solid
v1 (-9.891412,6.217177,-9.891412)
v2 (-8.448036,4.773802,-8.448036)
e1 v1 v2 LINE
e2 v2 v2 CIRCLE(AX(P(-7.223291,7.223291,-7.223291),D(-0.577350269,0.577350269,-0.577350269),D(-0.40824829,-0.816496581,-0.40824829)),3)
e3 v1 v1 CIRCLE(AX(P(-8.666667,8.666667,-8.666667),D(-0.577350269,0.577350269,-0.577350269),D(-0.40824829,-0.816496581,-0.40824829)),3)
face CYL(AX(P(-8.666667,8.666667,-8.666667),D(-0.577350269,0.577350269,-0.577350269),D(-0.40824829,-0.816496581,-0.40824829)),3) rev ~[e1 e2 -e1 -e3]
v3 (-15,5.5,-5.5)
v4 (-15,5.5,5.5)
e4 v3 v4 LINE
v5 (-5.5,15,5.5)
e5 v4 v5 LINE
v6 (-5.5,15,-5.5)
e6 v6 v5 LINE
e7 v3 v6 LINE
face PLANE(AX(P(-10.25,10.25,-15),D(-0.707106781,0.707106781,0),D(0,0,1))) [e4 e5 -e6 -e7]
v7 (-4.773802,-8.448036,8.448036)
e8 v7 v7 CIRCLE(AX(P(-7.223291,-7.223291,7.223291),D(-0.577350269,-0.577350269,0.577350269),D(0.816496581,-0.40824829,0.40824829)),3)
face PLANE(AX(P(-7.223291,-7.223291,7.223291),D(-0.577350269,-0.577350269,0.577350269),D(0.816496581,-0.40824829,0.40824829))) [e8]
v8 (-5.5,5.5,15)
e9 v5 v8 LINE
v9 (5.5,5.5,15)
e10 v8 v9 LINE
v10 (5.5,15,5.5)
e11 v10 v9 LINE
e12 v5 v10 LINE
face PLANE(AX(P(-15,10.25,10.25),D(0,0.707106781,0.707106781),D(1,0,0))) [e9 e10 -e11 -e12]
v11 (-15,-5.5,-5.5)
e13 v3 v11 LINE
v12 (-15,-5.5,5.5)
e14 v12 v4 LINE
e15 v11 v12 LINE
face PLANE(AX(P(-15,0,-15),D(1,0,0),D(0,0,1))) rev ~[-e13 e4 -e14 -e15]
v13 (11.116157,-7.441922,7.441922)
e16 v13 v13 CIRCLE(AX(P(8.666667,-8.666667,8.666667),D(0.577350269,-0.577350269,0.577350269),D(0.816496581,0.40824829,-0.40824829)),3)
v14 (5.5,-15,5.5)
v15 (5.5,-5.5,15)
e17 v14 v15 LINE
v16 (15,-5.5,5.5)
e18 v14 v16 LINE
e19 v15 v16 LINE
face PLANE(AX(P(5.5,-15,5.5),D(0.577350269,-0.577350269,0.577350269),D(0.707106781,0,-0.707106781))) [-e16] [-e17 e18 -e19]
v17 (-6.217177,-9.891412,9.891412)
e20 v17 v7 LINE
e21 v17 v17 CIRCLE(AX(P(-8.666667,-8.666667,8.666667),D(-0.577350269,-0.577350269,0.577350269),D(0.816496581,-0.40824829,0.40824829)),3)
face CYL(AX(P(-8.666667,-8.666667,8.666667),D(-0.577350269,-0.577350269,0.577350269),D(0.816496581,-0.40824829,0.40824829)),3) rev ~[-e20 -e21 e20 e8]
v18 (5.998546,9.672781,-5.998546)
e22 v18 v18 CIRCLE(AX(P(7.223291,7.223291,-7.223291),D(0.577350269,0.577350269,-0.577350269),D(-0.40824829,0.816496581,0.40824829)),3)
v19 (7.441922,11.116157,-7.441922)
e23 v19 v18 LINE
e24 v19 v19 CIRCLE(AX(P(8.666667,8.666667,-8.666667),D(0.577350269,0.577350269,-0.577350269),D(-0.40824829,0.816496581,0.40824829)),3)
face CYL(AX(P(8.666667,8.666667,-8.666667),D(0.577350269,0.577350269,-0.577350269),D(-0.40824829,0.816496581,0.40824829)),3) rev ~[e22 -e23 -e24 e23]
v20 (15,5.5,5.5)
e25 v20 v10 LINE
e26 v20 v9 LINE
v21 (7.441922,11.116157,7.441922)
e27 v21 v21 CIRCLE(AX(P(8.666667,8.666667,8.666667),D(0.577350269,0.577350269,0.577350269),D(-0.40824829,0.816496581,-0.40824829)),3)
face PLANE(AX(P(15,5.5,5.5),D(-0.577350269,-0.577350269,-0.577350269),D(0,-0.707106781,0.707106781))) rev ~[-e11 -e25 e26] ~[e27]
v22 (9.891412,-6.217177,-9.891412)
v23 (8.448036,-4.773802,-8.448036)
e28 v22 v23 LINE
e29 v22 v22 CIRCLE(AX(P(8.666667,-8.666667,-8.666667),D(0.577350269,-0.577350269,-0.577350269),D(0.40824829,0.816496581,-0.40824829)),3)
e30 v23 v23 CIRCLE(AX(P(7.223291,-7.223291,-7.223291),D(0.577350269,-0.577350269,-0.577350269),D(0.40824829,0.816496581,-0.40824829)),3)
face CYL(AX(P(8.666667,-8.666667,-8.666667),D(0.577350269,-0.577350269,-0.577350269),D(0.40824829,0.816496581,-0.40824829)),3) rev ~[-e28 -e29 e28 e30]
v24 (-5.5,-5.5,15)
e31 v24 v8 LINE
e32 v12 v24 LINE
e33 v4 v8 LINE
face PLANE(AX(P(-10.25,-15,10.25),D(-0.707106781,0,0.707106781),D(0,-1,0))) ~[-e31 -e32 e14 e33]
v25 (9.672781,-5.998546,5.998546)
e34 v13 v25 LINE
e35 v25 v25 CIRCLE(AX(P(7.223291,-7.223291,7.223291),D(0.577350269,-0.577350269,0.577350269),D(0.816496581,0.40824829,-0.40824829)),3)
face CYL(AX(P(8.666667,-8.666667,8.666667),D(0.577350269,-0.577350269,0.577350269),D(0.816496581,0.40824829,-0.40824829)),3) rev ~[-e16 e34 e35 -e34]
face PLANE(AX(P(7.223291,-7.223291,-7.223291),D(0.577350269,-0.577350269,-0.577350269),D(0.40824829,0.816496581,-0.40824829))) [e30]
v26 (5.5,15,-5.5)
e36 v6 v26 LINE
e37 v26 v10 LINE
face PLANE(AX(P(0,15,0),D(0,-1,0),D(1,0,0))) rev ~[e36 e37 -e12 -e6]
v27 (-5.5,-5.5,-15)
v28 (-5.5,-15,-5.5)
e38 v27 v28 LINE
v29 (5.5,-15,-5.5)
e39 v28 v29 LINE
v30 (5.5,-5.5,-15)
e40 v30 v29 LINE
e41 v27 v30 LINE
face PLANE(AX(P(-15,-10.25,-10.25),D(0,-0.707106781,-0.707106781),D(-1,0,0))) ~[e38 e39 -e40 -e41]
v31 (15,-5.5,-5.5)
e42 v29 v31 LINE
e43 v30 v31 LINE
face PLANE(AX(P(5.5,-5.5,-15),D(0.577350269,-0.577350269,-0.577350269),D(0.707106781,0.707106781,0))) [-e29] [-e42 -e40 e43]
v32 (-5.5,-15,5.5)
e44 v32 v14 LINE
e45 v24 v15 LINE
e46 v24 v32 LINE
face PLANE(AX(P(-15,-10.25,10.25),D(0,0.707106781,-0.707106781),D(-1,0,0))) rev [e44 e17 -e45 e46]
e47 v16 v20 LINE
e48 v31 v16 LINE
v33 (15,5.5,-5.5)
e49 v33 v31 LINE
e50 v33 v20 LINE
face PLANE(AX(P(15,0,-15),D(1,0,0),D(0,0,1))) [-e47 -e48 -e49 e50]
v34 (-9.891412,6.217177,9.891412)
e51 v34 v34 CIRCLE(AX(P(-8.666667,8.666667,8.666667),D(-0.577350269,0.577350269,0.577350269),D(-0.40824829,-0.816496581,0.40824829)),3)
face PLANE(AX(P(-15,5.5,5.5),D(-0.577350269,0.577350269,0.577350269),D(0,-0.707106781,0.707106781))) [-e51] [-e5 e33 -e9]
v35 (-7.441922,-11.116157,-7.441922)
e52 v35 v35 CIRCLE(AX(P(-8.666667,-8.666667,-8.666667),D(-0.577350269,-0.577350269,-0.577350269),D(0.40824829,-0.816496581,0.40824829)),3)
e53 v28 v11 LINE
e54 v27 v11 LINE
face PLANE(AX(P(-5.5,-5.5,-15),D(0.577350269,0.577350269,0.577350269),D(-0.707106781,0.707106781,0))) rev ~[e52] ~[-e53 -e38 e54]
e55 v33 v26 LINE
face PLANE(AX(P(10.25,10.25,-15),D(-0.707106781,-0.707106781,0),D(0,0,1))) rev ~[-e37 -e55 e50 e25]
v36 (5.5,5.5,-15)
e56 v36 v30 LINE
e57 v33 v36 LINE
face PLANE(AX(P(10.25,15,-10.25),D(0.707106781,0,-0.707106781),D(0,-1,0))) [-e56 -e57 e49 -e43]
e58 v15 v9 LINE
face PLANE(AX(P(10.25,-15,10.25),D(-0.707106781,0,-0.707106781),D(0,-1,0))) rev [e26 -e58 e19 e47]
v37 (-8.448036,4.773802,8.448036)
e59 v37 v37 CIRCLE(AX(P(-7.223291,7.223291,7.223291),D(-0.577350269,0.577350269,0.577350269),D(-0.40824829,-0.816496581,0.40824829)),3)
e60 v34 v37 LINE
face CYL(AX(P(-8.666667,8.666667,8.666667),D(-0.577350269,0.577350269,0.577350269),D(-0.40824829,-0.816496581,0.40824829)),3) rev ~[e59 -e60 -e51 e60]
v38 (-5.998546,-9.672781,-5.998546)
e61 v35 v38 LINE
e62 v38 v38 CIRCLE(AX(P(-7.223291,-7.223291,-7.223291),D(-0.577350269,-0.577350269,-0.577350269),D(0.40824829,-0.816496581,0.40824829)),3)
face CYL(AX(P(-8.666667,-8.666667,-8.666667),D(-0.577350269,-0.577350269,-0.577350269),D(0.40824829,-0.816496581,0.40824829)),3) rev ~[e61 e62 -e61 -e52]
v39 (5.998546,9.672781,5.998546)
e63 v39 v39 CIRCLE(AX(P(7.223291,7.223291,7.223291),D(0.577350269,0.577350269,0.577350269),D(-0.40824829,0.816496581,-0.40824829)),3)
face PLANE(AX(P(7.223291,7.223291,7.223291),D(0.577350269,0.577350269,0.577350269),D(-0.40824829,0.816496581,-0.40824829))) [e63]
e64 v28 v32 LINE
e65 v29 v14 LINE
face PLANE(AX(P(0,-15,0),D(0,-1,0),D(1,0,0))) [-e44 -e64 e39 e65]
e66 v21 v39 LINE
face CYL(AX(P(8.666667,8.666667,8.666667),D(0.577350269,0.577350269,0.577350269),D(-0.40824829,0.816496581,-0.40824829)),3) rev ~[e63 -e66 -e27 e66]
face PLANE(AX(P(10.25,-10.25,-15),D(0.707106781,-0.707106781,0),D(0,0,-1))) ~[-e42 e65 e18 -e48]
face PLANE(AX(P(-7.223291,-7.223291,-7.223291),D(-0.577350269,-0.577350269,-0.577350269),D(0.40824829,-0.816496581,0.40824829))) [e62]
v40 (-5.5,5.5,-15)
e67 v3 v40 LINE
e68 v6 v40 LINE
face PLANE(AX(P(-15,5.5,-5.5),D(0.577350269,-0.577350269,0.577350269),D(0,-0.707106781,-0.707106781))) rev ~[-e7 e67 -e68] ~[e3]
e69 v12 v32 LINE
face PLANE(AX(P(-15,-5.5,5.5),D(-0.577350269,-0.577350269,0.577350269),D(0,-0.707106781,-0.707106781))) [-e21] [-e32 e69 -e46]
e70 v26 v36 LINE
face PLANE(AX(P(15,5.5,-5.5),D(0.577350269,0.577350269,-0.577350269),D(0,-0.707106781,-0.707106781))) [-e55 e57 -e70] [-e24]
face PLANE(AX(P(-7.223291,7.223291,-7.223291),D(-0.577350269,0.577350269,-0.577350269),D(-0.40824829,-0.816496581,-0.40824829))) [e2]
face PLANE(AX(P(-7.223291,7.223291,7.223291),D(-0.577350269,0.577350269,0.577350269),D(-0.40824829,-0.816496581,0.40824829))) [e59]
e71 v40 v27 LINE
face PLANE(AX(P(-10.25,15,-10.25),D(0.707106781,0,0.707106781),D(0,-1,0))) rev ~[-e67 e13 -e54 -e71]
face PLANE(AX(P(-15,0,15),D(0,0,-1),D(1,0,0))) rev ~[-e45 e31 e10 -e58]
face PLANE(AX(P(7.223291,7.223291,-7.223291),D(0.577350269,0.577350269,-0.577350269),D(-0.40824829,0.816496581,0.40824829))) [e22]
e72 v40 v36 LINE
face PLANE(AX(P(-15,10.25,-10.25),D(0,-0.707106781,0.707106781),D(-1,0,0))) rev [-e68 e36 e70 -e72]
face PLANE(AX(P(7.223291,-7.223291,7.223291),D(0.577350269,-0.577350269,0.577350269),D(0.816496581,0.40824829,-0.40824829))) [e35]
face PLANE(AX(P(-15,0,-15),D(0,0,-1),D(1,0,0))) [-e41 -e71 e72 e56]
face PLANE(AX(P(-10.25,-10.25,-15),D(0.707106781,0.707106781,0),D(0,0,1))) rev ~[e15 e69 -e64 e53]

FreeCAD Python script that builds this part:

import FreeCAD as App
import Part
import Sketcher


def add_polygon(sketch, points):
    """Adds a closed chain of lines whose ends are joined by coincident constraints."""
    first, n = sketch.GeometryCount, len(points)
    for a, b in zip(points, points[1:] + points[:1]):
        sketch.addGeometry(Part.LineSegment(App.Vector(*a, 0), App.Vector(*b, 0)), False)
    for i in range(n):
        sketch.addConstraint(Sketcher.Constraint("Coincident", first + i, 2, first + (i + 1) % n, 1))

doc = App.newDocument("Part")
body = doc.addObject("PartDesign::Body", "Body")

# Sketch on XZ plane
sketch1 = body.newObject("Sketcher::SketchObject", "Sketch")
sketch1.AttachmentSupport = (doc.getObject("XZ_Plane"), [""])
sketch1.MapMode = "FlatFace"
add_polygon(sketch1, [(-15, 15), (-15, -15), (15, -15), (15, 15)])  # lines 0-3
sketch1.addConstraint([
    Sketcher.Constraint("Vertical", 0),
    Sketcher.Constraint("Horizontal", 1),
    Sketcher.Constraint("Vertical", 2),
    Sketcher.Constraint("Horizontal", 3),
    Sketcher.Constraint("Symmetric", 0, 2, 2, 2, -1, 1),
    Sketcher.Constraint("Equal", 3, 0),
    Sketcher.Constraint("DistanceX", 1, 1, 1, 2, 30.0),
])
pad1 = body.newObject("PartDesign::Pad", "Pad")
pad1.Profile = sketch1
pad1.Length = 30
pad1.Midplane = True
doc.recompute()

chamfer = body.newObject("PartDesign::Chamfer", "Chamfer")
chamfer.Base = (pad1, ["Edge1"])
chamfer.UseAllEdges = True
chamfer.Size = 9.5

# Sketch on an angled plane
sketch2 = body.newObject("Sketcher::SketchObject", "Sketch001")
sketch2.Placement = App.Placement(App.Vector(-8.666667, 8.666667, 8.666667), App.Rotation(App.Vector(-0.40824829, -0.816496581, 0.40824829), App.Vector(0.707106781, 0, 0.707106781), App.Vector(-0.577350269, 0.577350269, 0.577350269), "ZXY"))
sketch2.addGeometry(Part.Circle(App.Vector(0, 0, 0), App.Vector(0, 0, 1), 3), False)
sketch2.addConstraint([
    Sketcher.Constraint("Coincident", 0, 3, -1, 1),
    Sketcher.Constraint("Diameter", 0, 6.0),
])
pocket1 = body.newObject("PartDesign::Pocket", "Pocket")
pocket1.Profile = sketch2
pocket1.Length = 2.5

# Sketch on an angled plane
sketch3 = body.newObject("Sketcher::SketchObject", "Sketch002")
sketch3.Placement = App.Placement(App.Vector(8.666667, 8.666667, -8.666667), App.Rotation(App.Vector(-0.40824829, 0.816496581, 0.40824829), App.Vector(0.707106781, 0, 0.707106781), App.Vector(0.577350269, 0.577350269, -0.577350269), "ZXY"))
sketch3.addGeometry(Part.Circle(App.Vector(0, 0, 0), App.Vector(0, 0, 1), 3), False)
sketch3.addConstraint([
    Sketcher.Constraint("Coincident", 0, 3, -1, 1),
    Sketcher.Constraint("Diameter", 0, 6.0),
])
pocket2 = body.newObject("PartDesign::Pocket", "Pocket001")
pocket2.Profile = sketch3
pocket2.Length = 2.5

# Sketch on an angled plane
sketch4 = body.newObject("Sketcher::SketchObject", "Sketch003")
sketch4.Placement = App.Placement(App.Vector(-8.666667, 8.666667, -8.666667), App.Rotation(App.Vector(-0.40824829, -0.816496581, -0.40824829), App.Vector(-0.707106781, 0, 0.707106781), App.Vector(-0.577350269, 0.577350269, -0.577350269), "ZXY"))
sketch4.addGeometry(Part.Circle(App.Vector(0, 0, 0), App.Vector(0, 0, 1), 3), False)
sketch4.addConstraint([
    Sketcher.Constraint("Coincident", 0, 3, -1, 1),
    Sketcher.Constraint("Diameter", 0, 6.0),
])
pocket3 = body.newObject("PartDesign::Pocket", "Pocket002")
pocket3.Profile = sketch4
pocket3.Length = 2.5

# Sketch on an angled plane
sketch5 = body.newObject("Sketcher::SketchObject", "Sketch004")
sketch5.Placement = App.Placement(App.Vector(-8.666667, -8.666667, 8.666667), App.Rotation(App.Vector(0.816496581, -0.40824829, 0.40824829), App.Vector(0, 0.707106781, 0.707106781), App.Vector(-0.577350269, -0.577350269, 0.577350269), "ZXY"))
sketch5.addGeometry(Part.Circle(App.Vector(0, 0, 0), App.Vector(0, 0, 1), 3), False)
sketch5.addConstraint([
    Sketcher.Constraint("Coincident", 0, 3, -1, 1),
    Sketcher.Constraint("Diameter", 0, 6.0),
])
pocket4 = body.newObject("PartDesign::Pocket", "Pocket003")
pocket4.Profile = sketch5
pocket4.Length = 2.5

# Sketch on an angled plane
sketch6 = body.newObject("Sketcher::SketchObject", "Sketch005")
sketch6.Placement = App.Placement(App.Vector(8.666667, -8.666667, 8.666667), App.Rotation(App.Vector(0.816496581, 0.40824829, -0.40824829), App.Vector(0, 0.707106781, 0.707106781), App.Vector(0.577350269, -0.577350269, 0.577350269), "ZXY"))
sketch6.addGeometry(Part.Circle(App.Vector(0, 0, 0), App.Vector(0, 0, 1), 3), False)
sketch6.addConstraint([
    Sketcher.Constraint("Coincident", 0, 3, -1, 1),
    Sketcher.Constraint("Diameter", 0, 6.0),
])
pocket5 = body.newObject("PartDesign::Pocket", "Pocket004")
pocket5.Profile = sketch6
pocket5.Length = 2.5

# Sketch on an angled plane
sketch7 = body.newObject("Sketcher::SketchObject", "Sketch006")
sketch7.Placement = App.Placement(App.Vector(-8.666667, -8.666667, -8.666667), App.Rotation(App.Vector(0.40824829, -0.816496581, 0.40824829), App.Vector(-0.707106781, 0, 0.707106781), App.Vector(-0.577350269, -0.577350269, -0.577350269), "ZXY"))
sketch7.addGeometry(Part.Circle(App.Vector(0, 0, 0), App.Vector(0, 0, 1), 3), False)
sketch7.addConstraint([
    Sketcher.Constraint("Coincident", 0, 3, -1, 1),
    Sketcher.Constraint("Diameter", 0, 6.0),
])
pocket6 = body.newObject("PartDesign::Pocket", "Pocket005")
pocket6.Profile = sketch7
pocket6.Length = 2.5

# Sketch on an angled plane
sketch8 = body.newObject("Sketcher::SketchObject", "Sketch007")
sketch8.Placement = App.Placement(App.Vector(8.666667, 8.666667, 8.666667), App.Rotation(App.Vector(-0.40824829, 0.816496581, -0.40824829), App.Vector(-0.707106781, 0, 0.707106781), App.Vector(0.577350269, 0.577350269, 0.577350269), "ZXY"))
sketch8.addGeometry(Part.Circle(App.Vector(0, 0, 0), App.Vector(0, 0, 1), 3), False)
sketch8.addConstraint([
    Sketcher.Constraint("Coincident", 0, 3, -1, 1),
    Sketcher.Constraint("Diameter", 0, 6.0),
])
pocket7 = body.newObject("PartDesign::Pocket", "Pocket006")
pocket7.Profile = sketch8
pocket7.Length = 2.5

# Sketch on an angled plane
sketch9 = body.newObject("Sketcher::SketchObject", "Sketch008")
sketch9.Placement = App.Placement(App.Vector(8.666667, -8.666667, -8.666667), App.Rotation(App.Vector(0.40824829, 0.816496581, -0.40824829), App.Vector(0.707106781, 0, 0.707106781), App.Vector(0.577350269, -0.577350269, -0.577350269), "ZXY"))
sketch9.addGeometry(Part.Circle(App.Vector(0, 0, 0), App.Vector(0, 0, 1), 3), False)
sketch9.addConstraint([
    Sketcher.Constraint("Coincident", 0, 3, -1, 1),
    Sketcher.Constraint("Diameter", 0, 6.0),
])
pocket8 = body.newObject("PartDesign::Pocket", "Pocket007")
pocket8.Profile = sketch9
pocket8.Length = 2.5

doc.recompute()
